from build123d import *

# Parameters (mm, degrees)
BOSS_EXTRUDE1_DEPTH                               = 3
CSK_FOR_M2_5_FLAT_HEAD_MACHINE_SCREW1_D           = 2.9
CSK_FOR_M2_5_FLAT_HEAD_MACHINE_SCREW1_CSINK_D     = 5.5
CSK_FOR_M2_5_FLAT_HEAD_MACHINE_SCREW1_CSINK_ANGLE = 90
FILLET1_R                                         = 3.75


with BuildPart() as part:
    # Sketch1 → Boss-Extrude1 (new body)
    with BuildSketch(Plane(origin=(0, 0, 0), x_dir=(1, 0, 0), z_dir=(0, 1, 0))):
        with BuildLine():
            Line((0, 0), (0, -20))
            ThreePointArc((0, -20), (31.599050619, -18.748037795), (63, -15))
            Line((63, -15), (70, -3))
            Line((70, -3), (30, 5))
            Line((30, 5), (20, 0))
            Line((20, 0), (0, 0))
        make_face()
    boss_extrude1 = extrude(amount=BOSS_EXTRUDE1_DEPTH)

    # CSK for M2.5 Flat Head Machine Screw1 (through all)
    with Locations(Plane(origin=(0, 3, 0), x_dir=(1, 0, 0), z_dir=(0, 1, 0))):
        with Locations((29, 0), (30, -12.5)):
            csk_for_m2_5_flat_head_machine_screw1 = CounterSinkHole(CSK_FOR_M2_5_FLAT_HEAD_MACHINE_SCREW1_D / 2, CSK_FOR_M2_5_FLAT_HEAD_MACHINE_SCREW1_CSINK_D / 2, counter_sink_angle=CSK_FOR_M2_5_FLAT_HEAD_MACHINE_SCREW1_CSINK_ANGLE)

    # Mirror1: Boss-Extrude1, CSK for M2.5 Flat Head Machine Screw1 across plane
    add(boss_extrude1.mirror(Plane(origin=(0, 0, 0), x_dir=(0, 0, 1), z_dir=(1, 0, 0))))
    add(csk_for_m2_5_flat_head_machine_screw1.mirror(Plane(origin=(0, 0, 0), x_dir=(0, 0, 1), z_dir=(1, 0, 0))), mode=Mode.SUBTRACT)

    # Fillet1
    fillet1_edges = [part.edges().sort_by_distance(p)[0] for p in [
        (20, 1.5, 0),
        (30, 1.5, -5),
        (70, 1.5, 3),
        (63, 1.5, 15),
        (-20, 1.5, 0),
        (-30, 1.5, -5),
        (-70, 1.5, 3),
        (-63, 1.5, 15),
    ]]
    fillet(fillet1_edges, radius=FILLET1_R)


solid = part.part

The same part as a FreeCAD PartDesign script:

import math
import FreeCAD as App
import Part
import Sketcher
from FreeCAD import Vector
Q = App.Units.Quantity


def edges_at(feature, points):
    """Names of the edges that pass closest to the given points."""
    edges = feature.Shape.Edges
    near = lambda p: min(range(len(edges)), key=lambda i: edges[i].distToShape(Part.Vertex(*p))[0])
    return sorted({f"Edge{near(p) + 1}" for p in points})

doc = App.newDocument("Part")
body = doc.addObject("PartDesign::Body", "Body")

# Sketch on XZ plane
sketch1 = doc.addObject("Sketcher::SketchObject", "Sketch")
body.addObject(sketch1)
sketch1.AttachmentSupport = (doc.XZ_Plane, [""])
sketch1.MapMode = "FlatFace"
sketch1.addGeometry(Part.LineSegment(Vector(0, 0, 0), Vector(0, 20, 0)), False)
sketch1.addGeometry(Part.ArcOfCircle(Part.Circle(Vector(0, -379, 0), Vector(0, 0, 1), 399), math.radians(80.92), math.radians(90)), False)
sketch1.addGeometry(Part.LineSegment(Vector(63, 15, 0), Vector(70, 3, 0)), False)
sketch1.addGeometry(Part.LineSegment(Vector(70, 3, 0), Vector(30, -5, 0)), False)
sketch1.addGeometry(Part.LineSegment(Vector(30, -5, 0), Vector(20, 0, 0)), False)
sketch1.addGeometry(Part.LineSegment(Vector(20, 0, 0), Vector(0, 0, 0)), False)
sketch1.addConstraint(Sketcher.Constraint("Coincident", 0, 2, 1, 2))
sketch1.addConstraint(Sketcher.Constraint("Coincident", 1, 1, 2, 1))
sketch1.addConstraint(Sketcher.Constraint("Coincident", 2, 2, 3, 1))
sketch1.addConstraint(Sketcher.Constraint("Coincident", 3, 2, 4, 1))
sketch1.addConstraint(Sketcher.Constraint("Coincident", 4, 2, 5, 1))
sketch1.addConstraint(Sketcher.Constraint("Coincident", 5, 2, 0, 1))
sketch1.addConstraint(Sketcher.Constraint("Vertical", 0))
sketch1.addConstraint(Sketcher.Constraint("Horizontal", 5))
sketch1.addConstraint(Sketcher.Constraint("Coincident", 5, 2, -1, 1))
sketch1.addConstraint(Sketcher.Constraint("PointOnObject", 1, 3, -2))
sketch1.addConstraint(Sketcher.Constraint("Equal", 5, 0))
sketch1.addConstraint(Sketcher.Constraint("Radius", 1, Q("399.4 mm")))
sketch1.addConstraint(Sketcher.Constraint("DistanceX", 5, 2, 5, 1, Q("20 mm")))
sketch1.addConstraint(Sketcher.Constraint("DistanceX", -1, 1, 1, 1, Q("63 mm")))
sketch1.addConstraint(Sketcher.Constraint("DistanceX", -1, 1, 2, 2, Q("70 mm")))
sketch1.addConstraint(Sketcher.Constraint("DistanceY", -1, 1, 2, 2, Q("3 mm")))
sketch1.addConstraint(Sketcher.Constraint("DistanceX", -1, 1, 3, 2, Q("30 mm")))
sketch1.addConstraint(Sketcher.Constraint("DistanceY", 3, 2, -1, 1, Q("5 mm")))
pad1 = doc.addObject("PartDesign::Pad", "Pad")
body.addObject(pad1)
pad1.Profile = sketch1
pad1.Length = 3
pad1.Reversed = True

# Sketch on XZ plane
sketch2 = doc.addObject("Sketcher::SketchObject", "Sketch001")
body.addObject(sketch2)
sketch2.AttachmentSupport = (doc.XZ_Plane, [""])
sketch2.MapMode = "FlatFace"
sketch2.AttachmentOffset = App.Placement(Vector(0, 0, -3), App.Rotation())
sketch2.addGeometry(Part.Circle(Vector(29, 0, 0), Vector(0, 0, 1), 1.4), False)
sketch2.addGeometry(Part.Circle(Vector(30, 12.5, 0), Vector(0, 0, 1), 1.4), False)
sketch2.addConstraint(Sketcher.Constraint("Equal", 0, 1))
sketch2.addConstraint(Sketcher.Constraint("PointOnObject", 0, 3, -1))
sketch2.addConstraint(Sketcher.Constraint("Diameter", 0, Q("2.9 mm")))
sketch2.addConstraint(Sketcher.Constraint("DistanceX", -1, 1, 0, 3, Q("29 mm")))
sketch2.addConstraint(Sketcher.Constraint("DistanceX", -1, 1, 1, 3, Q("30 mm")))
sketch2.addConstraint(Sketcher.Constraint("DistanceY", -1, 1, 1, 3, Q("12.5 mm")))
doc.recompute()
hole = doc.addObject("PartDesign::Hole", "Hole")
body.addObject(hole)
hole.Profile = sketch2
hole.ThreadType = "None"
hole.Diameter = 2.9
hole.DepthType = "ThroughAll"
hole.HoleCutType = "Countersink"
hole.HoleCutDiameter = 5.5
hole.HoleCutCountersinkAngle = 90
hole.Reversed = True
doc.recompute()

mirrored = doc.addObject("PartDesign::Mirrored", "Mirrored")
body.addObject(mirrored)
mirrored.Originals = [pad1, hole]
mirrored.MirrorPlane = (doc.YZ_Plane, [""])
body.Tip = mirrored
doc.recompute()

fillet = doc.addObject("PartDesign::Fillet", "Fillet")
body.addObject(fillet)
fillet.Base = (mirrored, edges_at(mirrored, [
    (20, 1.5, 0),
    (30, 1.5, -5),
    (70, 1.5, 3),
    (63, 1.5, 15),
    (-20, 1.5, 0),
    (-30, 1.5, -5),
    (-70, 1.5, 3),
    (-63, 1.5, 15),
]))
fillet.Radius = 3.75

doc.recompute()
